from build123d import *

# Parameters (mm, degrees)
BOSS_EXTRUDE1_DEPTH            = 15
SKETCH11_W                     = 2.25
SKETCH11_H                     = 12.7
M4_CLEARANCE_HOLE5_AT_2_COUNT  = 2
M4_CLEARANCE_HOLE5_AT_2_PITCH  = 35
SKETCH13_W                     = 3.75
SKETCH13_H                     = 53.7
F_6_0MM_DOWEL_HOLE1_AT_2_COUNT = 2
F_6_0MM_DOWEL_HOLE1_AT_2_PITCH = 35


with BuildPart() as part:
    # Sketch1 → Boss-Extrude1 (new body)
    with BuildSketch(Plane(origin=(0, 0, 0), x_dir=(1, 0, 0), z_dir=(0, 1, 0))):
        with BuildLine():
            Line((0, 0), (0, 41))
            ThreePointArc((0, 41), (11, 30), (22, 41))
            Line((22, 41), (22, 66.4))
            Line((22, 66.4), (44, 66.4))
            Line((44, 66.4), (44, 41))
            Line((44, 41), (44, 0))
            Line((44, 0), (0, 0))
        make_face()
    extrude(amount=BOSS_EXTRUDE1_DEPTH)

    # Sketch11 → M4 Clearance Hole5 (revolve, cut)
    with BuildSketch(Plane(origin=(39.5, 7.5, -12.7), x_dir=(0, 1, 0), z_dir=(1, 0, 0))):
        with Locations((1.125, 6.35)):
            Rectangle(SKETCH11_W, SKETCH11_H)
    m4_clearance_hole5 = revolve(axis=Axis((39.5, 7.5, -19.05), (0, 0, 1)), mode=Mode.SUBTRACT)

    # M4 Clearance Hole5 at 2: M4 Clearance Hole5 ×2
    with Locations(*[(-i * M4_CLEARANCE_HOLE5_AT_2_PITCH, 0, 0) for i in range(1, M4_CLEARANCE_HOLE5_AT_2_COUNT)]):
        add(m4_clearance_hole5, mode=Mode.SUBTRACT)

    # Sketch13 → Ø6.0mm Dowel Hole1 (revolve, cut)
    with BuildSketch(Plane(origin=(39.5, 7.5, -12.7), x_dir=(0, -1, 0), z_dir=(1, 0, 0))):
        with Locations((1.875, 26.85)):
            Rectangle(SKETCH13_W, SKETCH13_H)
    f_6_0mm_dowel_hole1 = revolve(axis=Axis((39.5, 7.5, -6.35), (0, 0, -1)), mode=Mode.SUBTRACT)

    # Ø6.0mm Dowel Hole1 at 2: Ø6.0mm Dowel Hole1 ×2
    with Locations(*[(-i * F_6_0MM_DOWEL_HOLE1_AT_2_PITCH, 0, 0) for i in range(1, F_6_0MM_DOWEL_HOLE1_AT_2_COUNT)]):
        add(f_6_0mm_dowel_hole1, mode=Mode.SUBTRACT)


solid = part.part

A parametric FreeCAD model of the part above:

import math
import FreeCAD as App
import Part
import Sketcher
from FreeCAD import Vector
Q = App.Units.Quantity

doc = App.newDocument("Part")
body = doc.addObject("PartDesign::Body", "Body")

# Sketch on XZ plane
sketch1 = doc.addObject("Sketcher::SketchObject", "Sketch")
body.addObject(sketch1)
sketch1.AttachmentSupport = (doc.XZ_Plane, [""])
sketch1.MapMode = "FlatFace"
sketch1.addGeometry(Part.LineSegment(Vector(0, -41, 0), Vector(0, 0, 0)), False)
sketch1.addGeometry(Part.LineSegment(Vector(0, 0, 0), Vector(44, 0, 0)), False)
sketch1.addGeometry(Part.LineSegment(Vector(44, 0, 0), Vector(44, -66, 0)), False)
sketch1.addGeometry(Part.LineSegment(Vector(44, -66, 0), Vector(22, -66, 0)), False)
sketch1.addGeometry(Part.LineSegment(Vector(22, -66, 0), Vector(22, -41, 0)), False)
sketch1.addGeometry(Part.ArcOfCircle(Part.Circle(Vector(11, -41, 0), Vector(0, 0, 1), 11), math.radians(0), math.radians(180)), False)
sketch1.addConstraint(Sketcher.Constraint("Coincident", 0, 2, 1, 1))
sketch1.addConstraint(Sketcher.Constraint("Coincident", 1, 2, 2, 1))
sketch1.addConstraint(Sketcher.Constraint("Coincident", 2, 2, 3, 1))
sketch1.addConstraint(Sketcher.Constraint("Coincident", 3, 2, 4, 1))
sketch1.addConstraint(Sketcher.Constraint("Tangent", 4, 2, 5, 1))
sketch1.addConstraint(Sketcher.Constraint("Tangent", 5, 2, 0, 1))
sketch1.addConstraint(Sketcher.Constraint("Vertical", 0))
sketch1.addConstraint(Sketcher.Constraint("Horizontal", 1))
sketch1.addConstraint(Sketcher.Constraint("Vertical", 2))
sketch1.addConstraint(Sketcher.Constraint("Horizontal", 3))
sketch1.addConstraint(Sketcher.Constraint("Vertical", 4))
sketch1.addConstraint(Sketcher.Constraint("Coincident", 0, 2, -1, 1))
sketch1.addConstraint(Sketcher.Constraint("Radius", 5, Q("11 mm")))
sketch1.addConstraint(Sketcher.Constraint("DistanceX", 1, 1, 1, 2, Q("44 mm")))
sketch1.addConstraint(Sketcher.Constraint("DistanceY", 0, 1, 0, 2, Q("41 mm")))
sketch1.addConstraint(Sketcher.Constraint("DistanceY", 2, 2, 2, 1, Q("66.4 mm")))
pad1 = doc.addObject("PartDesign::Pad", "Pad")
body.addObject(pad1)
pad1.Profile = sketch1
pad1.Length = 15
pad1.Reversed = True

# Sketch on YZ plane
sketch2 = doc.addObject("Sketcher::SketchObject", "Sketch001")
body.addObject(sketch2)
sketch2.AttachmentSupport = (doc.YZ_Plane, [""])
sketch2.MapMode = "FlatFace"
sketch2.AttachmentOffset = App.Placement(Vector(0, 0, 39.5), App.Rotation())
sketch2.addGeometry(Part.LineSegment(Vector(7.5, 0, 0), Vector(7.5, -12.7, 0)), False)
sketch2.addGeometry(Part.LineSegment(Vector(7.5, -12.7, 0), Vector(9.8, -12.7, 0)), False)
sketch2.addGeometry(Part.LineSegment(Vector(9.8, -12.7, 0), Vector(9.8, 0, 0)), False)
sketch2.addGeometry(Part.LineSegment(Vector(9.8, 0, 0), Vector(7.5, 0, 0)), False)
sketch2.addGeometry(Part.LineSegment(Vector(7.5, -12.7, 0), Vector(7.5, 0, 0)), True)  # axis
sketch2.addConstraint(Sketcher.Constraint("Coincident", 0, 2, 1, 1))
sketch2.addConstraint(Sketcher.Constraint("Coincident", 1, 2, 2, 1))
sketch2.addConstraint(Sketcher.Constraint("Coincident", 2, 2, 3, 1))
sketch2.addConstraint(Sketcher.Constraint("Coincident", 3, 2, 0, 1))
sketch2.addConstraint(Sketcher.Constraint("Vertical", 0))
sketch2.addConstraint(Sketcher.Constraint("Horizontal", 1))
sketch2.addConstraint(Sketcher.Constraint("Vertical", 2))
sketch2.addConstraint(Sketcher.Constraint("Horizontal", 3))
sketch2.addConstraint(Sketcher.Constraint("Vertical", 4))
sketch2.addConstraint(Sketcher.Constraint("Coincident", 4, 1, 0, 2))
sketch2.addConstraint(Sketcher.Constraint("PointOnObject", 2, 2, -1))
sketch2.addConstraint(Sketcher.Constraint("PointOnObject", 4, 2, -1))
sketch2.addConstraint(Sketcher.Constraint("DistanceY", 0, 2, 0, 1, Q("12.7 mm")))
sketch2.addConstraint(Sketcher.Constraint("DistanceX", 1, 1, 1, 2, Q("2.25 mm")))
sketch2.addConstraint(Sketcher.Constraint("DistanceX", -1, 1, 0, 2, Q("7.5 mm")))
groove = doc.addObject("PartDesign::Groove", "Groove")
body.addObject(groove)
groove.Profile = sketch2
groove.ReferenceAxis = (sketch2, ["Axis0"])
groove.Angle = 360
doc.recompute()

linearpattern = doc.addObject("PartDesign::LinearPattern", "LinearPattern")
body.addObject(linearpattern)
linearpattern.Originals = [groove]
linearpattern.Direction = (doc.X_Axis, [""])
linearpattern.Mode = "offset"
linearpattern.Offset = 35
linearpattern.Occurrences = 2
linearpattern.Reversed = True
body.Tip = linearpattern

# Sketch on YZ plane
sketch3 = doc.addObject("Sketcher::SketchObject", "Sketch002")
body.addObject(sketch3)
sketch3.AttachmentSupport = (doc.YZ_Plane, [""])
sketch3.MapMode = "FlatFace"
sketch3.AttachmentOffset = App.Placement(Vector(0, 0, 39.5), App.Rotation())
sketch3.addGeometry(Part.LineSegment(Vector(7.5, -66.4, 0), Vector(7.5, -12.7, 0)), False)
sketch3.addGeometry(Part.LineSegment(Vector(7.5, -12.7, 0), Vector(3.8, -12.7, 0)), False)
sketch3.addGeometry(Part.LineSegment(Vector(3.8, -12.7, 0), Vector(3.8, -66.4, 0)), False)
sketch3.addGeometry(Part.LineSegment(Vector(3.8, -66.4, 0), Vector(7.5, -66.4, 0)), False)
sketch3.addGeometry(Part.LineSegment(Vector(7.5, -12.7, 0), Vector(7.5, -66.4, 0)), True)  # axis
sketch3.addConstraint(Sketcher.Constraint("Coincident", 0, 2, 1, 1))
sketch3.addConstraint(Sketcher.Constraint("Coincident", 1, 2, 2, 1))
sketch3.addConstraint(Sketcher.Constraint("Coincident", 2, 2, 3, 1))
sketch3.addConstraint(Sketcher.Constraint("Coincident", 3, 2, 0, 1))
sketch3.addConstraint(Sketcher.Constraint("Vertical", 0))
sketch3.addConstraint(Sketcher.Constraint("Horizontal", 1))
sketch3.addConstraint(Sketcher.Constraint("Vertical", 2))
sketch3.addConstraint(Sketcher.Constraint("Horizontal", 3))
sketch3.addConstraint(Sketcher.Constraint("Vertical", 4))
sketch3.addConstraint(Sketcher.Constraint("Coincident", 4, 1, 0, 2))
sketch3.addConstraint(Sketcher.Constraint("Horizontal", 2, 2, 4, 2))
sketch3.addConstraint(Sketcher.Constraint("DistanceY", 0, 1, 0, 2, Q("53.7 mm")))
sketch3.addConstraint(Sketcher.Constraint("DistanceX", 1, 2, 1, 1, Q("3.75 mm")))
sketch3.addConstraint(Sketcher.Constraint("DistanceX", -1, 1, 0, 2, Q("7.5 mm")))
sketch3.addConstraint(Sketcher.Constraint("DistanceY", 0, 2, -1, 1, Q("12.7 mm")))
groove2 = doc.addObject("PartDesign::Groove", "Groove001")
body.addObject(groove2)
groove2.Profile = sketch3
groove2.ReferenceAxis = (sketch3, ["Axis0"])
groove2.Angle = 360
doc.recompute()

linearpattern2 = doc.addObject("PartDesign::LinearPattern", "LinearPattern001")
body.addObject(linearpattern2)
linearpattern2.Originals = [groove2]
linearpattern2.Direction = (doc.X_Axis, [""])
linearpattern2.Mode = "offset"
linearpattern2.Offset = 35
linearpattern2.Occurrences = 2
linearpattern2.Reversed = True
body.Tip = linearpattern2

doc.recompute()
